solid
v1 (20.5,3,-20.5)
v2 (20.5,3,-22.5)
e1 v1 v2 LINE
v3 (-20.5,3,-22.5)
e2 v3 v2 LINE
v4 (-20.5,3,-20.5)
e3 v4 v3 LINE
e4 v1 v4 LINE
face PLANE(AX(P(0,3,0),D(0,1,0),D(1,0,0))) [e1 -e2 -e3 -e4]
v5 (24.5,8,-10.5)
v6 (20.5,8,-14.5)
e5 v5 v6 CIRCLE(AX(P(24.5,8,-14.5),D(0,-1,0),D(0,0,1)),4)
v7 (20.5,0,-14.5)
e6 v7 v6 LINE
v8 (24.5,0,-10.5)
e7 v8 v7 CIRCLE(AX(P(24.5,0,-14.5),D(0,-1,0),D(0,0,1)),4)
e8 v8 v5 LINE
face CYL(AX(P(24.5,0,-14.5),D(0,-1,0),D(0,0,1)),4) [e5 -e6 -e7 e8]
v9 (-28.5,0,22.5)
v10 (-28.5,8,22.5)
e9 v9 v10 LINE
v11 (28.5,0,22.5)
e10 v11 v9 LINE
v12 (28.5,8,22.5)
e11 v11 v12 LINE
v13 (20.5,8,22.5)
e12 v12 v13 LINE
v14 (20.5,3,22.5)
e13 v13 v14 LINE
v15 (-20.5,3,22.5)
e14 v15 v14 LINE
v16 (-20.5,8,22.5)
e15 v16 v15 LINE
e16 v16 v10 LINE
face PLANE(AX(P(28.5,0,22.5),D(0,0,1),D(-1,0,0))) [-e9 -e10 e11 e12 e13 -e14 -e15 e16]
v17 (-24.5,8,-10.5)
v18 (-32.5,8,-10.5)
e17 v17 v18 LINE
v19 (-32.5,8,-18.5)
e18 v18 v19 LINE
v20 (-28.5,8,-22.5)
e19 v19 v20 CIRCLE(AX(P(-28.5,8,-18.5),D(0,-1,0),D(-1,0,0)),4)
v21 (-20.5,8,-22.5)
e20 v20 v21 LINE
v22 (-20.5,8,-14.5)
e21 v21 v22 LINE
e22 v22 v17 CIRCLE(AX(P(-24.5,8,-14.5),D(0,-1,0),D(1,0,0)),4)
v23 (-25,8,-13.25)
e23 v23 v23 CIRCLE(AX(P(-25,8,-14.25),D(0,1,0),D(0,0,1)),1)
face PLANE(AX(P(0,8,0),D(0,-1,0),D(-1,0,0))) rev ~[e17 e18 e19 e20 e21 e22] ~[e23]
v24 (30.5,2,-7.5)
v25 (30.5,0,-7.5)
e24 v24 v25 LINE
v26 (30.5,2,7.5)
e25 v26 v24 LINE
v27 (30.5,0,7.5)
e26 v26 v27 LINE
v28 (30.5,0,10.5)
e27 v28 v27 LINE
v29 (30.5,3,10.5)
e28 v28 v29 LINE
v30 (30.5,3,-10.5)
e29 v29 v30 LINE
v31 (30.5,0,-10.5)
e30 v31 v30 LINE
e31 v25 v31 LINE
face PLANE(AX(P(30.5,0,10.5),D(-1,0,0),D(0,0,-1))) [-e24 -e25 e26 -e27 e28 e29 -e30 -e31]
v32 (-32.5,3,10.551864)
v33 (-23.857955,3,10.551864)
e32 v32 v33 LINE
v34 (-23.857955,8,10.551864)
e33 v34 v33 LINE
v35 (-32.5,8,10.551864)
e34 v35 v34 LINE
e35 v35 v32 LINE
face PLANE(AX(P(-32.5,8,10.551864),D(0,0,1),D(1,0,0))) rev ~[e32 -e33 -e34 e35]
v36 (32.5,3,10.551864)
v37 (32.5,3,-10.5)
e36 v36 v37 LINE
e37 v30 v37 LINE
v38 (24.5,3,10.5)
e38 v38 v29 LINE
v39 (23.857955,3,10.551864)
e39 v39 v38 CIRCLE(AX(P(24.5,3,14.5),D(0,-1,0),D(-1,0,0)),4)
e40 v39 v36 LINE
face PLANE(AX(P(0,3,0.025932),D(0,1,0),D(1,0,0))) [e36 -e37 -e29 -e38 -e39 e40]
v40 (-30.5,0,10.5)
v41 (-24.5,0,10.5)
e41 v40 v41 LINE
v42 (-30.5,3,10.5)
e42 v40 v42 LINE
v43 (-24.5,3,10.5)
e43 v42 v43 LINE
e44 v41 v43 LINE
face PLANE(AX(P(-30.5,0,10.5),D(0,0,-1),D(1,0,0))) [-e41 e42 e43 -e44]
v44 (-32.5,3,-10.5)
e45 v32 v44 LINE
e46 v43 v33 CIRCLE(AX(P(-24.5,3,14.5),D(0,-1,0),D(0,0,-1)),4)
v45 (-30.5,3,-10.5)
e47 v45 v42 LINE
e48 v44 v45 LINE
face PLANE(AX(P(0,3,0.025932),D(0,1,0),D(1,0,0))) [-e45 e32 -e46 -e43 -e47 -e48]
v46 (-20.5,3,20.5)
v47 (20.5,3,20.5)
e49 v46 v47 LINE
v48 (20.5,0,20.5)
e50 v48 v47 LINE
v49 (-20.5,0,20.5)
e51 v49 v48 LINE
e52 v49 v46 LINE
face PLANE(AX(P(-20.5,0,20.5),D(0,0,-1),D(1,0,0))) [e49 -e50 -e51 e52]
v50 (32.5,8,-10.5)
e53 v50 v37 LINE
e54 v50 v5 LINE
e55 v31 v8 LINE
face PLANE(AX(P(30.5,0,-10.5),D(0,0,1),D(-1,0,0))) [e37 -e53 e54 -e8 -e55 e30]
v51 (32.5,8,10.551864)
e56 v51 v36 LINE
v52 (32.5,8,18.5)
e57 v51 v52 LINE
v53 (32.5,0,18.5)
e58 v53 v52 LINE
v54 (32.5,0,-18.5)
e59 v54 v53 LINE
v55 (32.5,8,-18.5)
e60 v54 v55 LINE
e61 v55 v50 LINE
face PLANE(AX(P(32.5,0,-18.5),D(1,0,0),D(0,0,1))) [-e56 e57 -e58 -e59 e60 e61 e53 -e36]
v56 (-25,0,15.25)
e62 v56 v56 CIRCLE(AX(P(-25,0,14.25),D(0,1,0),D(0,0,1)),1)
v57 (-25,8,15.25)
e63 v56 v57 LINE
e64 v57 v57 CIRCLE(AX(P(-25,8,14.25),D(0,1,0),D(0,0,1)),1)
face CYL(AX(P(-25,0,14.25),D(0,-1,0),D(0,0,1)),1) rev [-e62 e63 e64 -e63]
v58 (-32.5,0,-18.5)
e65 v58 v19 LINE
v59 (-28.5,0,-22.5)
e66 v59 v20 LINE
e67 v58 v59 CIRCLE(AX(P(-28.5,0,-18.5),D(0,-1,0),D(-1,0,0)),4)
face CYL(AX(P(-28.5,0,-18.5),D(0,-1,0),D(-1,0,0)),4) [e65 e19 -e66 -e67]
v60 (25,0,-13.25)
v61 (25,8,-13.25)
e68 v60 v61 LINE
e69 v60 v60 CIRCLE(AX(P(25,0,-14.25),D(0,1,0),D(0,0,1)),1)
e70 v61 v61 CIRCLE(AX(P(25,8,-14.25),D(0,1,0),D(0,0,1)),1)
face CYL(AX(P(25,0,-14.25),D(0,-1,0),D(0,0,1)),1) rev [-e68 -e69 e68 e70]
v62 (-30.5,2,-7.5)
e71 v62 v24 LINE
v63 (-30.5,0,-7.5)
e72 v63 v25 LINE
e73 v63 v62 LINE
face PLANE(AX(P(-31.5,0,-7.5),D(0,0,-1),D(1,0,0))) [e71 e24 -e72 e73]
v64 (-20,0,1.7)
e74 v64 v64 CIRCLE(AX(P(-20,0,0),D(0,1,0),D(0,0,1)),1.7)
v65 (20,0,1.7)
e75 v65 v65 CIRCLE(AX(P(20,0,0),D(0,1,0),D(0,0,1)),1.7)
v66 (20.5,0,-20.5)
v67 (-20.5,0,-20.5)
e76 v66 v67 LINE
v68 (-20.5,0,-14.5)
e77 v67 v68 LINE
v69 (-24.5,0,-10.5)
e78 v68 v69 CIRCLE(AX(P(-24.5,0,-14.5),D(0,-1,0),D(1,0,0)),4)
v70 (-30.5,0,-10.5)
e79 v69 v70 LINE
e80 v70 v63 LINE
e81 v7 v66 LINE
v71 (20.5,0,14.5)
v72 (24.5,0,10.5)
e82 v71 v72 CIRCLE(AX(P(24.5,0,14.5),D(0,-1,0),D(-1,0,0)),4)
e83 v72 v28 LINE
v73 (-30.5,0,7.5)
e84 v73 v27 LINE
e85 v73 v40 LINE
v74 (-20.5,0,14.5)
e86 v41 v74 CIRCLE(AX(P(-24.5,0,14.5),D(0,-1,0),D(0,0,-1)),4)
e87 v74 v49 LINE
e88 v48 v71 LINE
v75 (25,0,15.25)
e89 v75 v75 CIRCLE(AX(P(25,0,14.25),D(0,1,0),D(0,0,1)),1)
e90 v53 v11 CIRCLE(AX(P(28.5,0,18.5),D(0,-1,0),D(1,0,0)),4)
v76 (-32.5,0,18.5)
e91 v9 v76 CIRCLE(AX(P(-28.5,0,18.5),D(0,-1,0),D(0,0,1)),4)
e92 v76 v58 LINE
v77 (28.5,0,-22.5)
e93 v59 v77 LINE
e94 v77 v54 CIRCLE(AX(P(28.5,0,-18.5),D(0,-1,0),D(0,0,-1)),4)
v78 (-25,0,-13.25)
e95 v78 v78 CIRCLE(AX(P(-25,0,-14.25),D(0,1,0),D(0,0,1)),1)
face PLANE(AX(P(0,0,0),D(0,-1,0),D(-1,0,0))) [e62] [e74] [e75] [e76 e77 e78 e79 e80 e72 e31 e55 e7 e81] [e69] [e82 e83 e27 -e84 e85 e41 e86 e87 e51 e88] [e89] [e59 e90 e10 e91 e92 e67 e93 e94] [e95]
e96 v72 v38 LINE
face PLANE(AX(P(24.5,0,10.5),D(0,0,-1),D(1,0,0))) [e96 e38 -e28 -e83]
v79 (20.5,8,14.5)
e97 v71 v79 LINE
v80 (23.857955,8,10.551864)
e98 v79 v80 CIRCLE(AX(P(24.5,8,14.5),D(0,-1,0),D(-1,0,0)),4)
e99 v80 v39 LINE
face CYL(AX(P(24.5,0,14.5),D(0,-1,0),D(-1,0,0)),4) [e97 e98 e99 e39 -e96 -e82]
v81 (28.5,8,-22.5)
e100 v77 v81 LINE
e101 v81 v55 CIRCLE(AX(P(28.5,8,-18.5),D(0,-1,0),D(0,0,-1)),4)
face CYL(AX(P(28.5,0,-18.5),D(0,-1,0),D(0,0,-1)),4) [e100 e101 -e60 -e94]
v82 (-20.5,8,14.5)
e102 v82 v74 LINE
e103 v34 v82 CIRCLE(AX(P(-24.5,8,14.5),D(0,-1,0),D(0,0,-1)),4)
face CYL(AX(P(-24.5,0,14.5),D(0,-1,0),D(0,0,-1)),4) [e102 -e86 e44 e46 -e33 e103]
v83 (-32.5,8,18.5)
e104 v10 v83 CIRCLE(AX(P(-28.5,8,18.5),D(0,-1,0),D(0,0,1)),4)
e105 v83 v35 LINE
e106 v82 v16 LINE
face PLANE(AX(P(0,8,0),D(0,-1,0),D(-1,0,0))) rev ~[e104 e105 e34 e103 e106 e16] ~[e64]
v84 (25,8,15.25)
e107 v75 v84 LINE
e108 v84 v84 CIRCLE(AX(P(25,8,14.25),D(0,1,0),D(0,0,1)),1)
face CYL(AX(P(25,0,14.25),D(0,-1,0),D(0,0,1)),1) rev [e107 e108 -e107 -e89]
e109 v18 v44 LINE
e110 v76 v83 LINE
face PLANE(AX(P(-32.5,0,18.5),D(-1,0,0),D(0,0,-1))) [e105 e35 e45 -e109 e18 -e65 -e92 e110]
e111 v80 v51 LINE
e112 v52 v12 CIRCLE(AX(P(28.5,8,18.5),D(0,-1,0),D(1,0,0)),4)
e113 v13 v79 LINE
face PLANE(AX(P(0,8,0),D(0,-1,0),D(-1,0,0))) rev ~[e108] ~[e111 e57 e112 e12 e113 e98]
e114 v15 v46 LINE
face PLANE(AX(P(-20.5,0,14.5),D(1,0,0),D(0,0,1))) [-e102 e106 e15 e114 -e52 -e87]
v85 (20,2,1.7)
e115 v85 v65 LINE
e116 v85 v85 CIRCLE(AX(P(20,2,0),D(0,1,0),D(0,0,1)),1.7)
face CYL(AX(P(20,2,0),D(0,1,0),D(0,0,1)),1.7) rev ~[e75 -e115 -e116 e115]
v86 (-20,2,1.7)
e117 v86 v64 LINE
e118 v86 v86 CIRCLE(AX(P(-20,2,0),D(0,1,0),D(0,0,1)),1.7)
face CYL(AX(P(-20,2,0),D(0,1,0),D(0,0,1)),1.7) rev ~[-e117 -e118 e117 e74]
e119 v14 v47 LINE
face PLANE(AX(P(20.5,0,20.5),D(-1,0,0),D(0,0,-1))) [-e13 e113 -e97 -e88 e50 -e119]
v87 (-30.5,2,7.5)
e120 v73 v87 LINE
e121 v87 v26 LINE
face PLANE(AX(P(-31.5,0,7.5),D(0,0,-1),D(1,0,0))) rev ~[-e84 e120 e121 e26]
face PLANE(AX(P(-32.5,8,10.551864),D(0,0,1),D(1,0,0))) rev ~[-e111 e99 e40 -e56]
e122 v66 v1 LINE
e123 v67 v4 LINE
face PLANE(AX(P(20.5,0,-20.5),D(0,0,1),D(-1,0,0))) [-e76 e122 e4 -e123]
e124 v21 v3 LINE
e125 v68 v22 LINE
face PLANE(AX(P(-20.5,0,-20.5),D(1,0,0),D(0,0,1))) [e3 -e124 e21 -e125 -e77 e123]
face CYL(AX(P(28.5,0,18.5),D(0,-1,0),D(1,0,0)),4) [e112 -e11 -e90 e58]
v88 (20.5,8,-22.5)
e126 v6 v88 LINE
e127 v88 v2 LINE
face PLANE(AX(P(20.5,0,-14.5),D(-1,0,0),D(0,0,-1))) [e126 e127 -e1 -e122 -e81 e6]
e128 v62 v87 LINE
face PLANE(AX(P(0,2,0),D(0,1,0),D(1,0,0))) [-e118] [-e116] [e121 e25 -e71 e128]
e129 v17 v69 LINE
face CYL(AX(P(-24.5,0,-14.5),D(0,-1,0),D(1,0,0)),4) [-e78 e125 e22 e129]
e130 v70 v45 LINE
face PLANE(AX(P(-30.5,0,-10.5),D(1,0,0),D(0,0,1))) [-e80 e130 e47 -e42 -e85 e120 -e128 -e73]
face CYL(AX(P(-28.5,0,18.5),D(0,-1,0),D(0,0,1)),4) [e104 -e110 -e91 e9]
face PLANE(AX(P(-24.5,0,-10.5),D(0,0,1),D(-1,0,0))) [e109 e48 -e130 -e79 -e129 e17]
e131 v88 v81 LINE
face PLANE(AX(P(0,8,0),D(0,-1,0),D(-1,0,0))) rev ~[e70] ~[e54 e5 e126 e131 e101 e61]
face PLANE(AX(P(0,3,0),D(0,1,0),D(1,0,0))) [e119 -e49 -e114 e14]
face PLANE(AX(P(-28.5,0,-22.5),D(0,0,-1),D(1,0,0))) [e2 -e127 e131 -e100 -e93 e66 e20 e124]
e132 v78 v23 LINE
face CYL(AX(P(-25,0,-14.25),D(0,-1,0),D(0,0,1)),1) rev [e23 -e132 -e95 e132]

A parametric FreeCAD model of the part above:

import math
import FreeCAD as App
import Part
import Sketcher

doc = App.newDocument("Part")
body = doc.addObject("PartDesign::Body", "Body")

sketch1 = doc.addObject("Sketcher::SketchObject", "Sketch")
body.addObject(sketch1)
sketch1.AttachmentSupport = (doc.XZ_Plane, [""])
sketch1.MapMode = "FlatFace"
sketch1.addGeometry(Part.LineSegment(App.Vector(28.5, -22.5, 0), App.Vector(-28.5, -22.5, 0)), False)
sketch1.addGeometry(Part.ArcOfCircle(Part.Circle(App.Vector(-28.5, -18.5, 0), App.Vector(0, 0, 1), 4), math.radians(180), math.radians(270)), False)
sketch1.addGeometry(Part.LineSegment(App.Vector(-32.5, -18.5, 0), App.Vector(-32.5, 18.5, 0)), False)
sketch1.addGeometry(Part.ArcOfCircle(Part.Circle(App.Vector(-28.5, 18.5, 0), App.Vector(0, 0, 1), 4), math.radians(90), math.radians(180)), False)
sketch1.addGeometry(Part.LineSegment(App.Vector(-28.5, 22.5, 0), App.Vector(28.5, 22.5, 0)), False)
sketch1.addGeometry(Part.ArcOfCircle(Part.Circle(App.Vector(28.5, 18.5, 0), App.Vector(0, 0, 1), 4), math.radians(0), math.radians(90)), False)
sketch1.addGeometry(Part.LineSegment(App.Vector(32.5, 18.5, 0), App.Vector(32.5, -18.5, 0)), False)
sketch1.addGeometry(Part.ArcOfCircle(Part.Circle(App.Vector(28.5, -18.5, 0), App.Vector(0, 0, 1), 4), math.radians(-90), math.radians(0)), False)
sketch1.addGeometry(Part.Circle(App.Vector(25, 14.2, 0), App.Vector(0, 0, 1), 1), False)
sketch1.addGeometry(Part.Circle(App.Vector(-25, 14.2, 0), App.Vector(0, 0, 1), 1), False)
sketch1.addGeometry(Part.Circle(App.Vector(25, -14.2, 0), App.Vector(0, 0, 1), 1), False)
sketch1.addGeometry(Part.LineSegment(App.Vector(-30.5, -10.5, 0), App.Vector(-24.5, -10.5, 0)), False)
sketch1.addGeometry(Part.ArcOfCircle(Part.Circle(App.Vector(-24.5, -14.5, 0), App.Vector(0, 0, 1), 4), math.radians(0), math.radians(90)), False)
sketch1.addGeometry(Part.LineSegment(App.Vector(-20.5, -14.5, 0), App.Vector(-20.5, -20.5, 0)), False)
sketch1.addGeometry(Part.LineSegment(App.Vector(-20.5, -20.5, 0), App.Vector(20.5, -20.5, 0)), False)
sketch1.addGeometry(Part.LineSegment(App.Vector(20.5, -20.5, 0), App.Vector(20.5, -14.5, 0)), False)
sketch1.addGeometry(Part.ArcOfCircle(Part.Circle(App.Vector(24.5, -14.5, 0), App.Vector(0, 0, 1), 4), math.radians(90), math.radians(180)), False)
sketch1.addGeometry(Part.LineSegment(App.Vector(24.5, -10.5, 0), App.Vector(30.5, -10.5, 0)), False)
sketch1.addGeometry(Part.LineSegment(App.Vector(30.5, -10.5, 0), App.Vector(30.5, 10.5, 0)), False)
sketch1.addGeometry(Part.LineSegment(App.Vector(30.5, 10.5, 0), App.Vector(24.5, 10.5, 0)), False)
sketch1.addGeometry(Part.ArcOfCircle(Part.Circle(App.Vector(24.5, 14.5, 0), App.Vector(0, 0, 1), 4), math.radians(180), math.radians(270)), False)
sketch1.addGeometry(Part.LineSegment(App.Vector(20.5, 14.5, 0), App.Vector(20.5, 20.5, 0)), False)
sketch1.addGeometry(Part.LineSegment(App.Vector(20.5, 20.5, 0), App.Vector(-20.5, 20.5, 0)), False)
sketch1.addGeometry(Part.LineSegment(App.Vector(-20.5, 20.5, 0), App.Vector(-20.5, 14.5, 0)), False)
sketch1.addGeometry(Part.ArcOfCircle(Part.Circle(App.Vector(-24.5, 14.5, 0), App.Vector(0, 0, 1), 4), math.radians(-90), math.radians(0)), False)
sketch1.addGeometry(Part.LineSegment(App.Vector(-24.5, 10.5, 0), App.Vector(-30.5, 10.5, 0)), False)
sketch1.addGeometry(Part.LineSegment(App.Vector(-30.5, 10.5, 0), App.Vector(-30.5, -10.5, 0)), False)
sketch1.addGeometry(Part.Circle(App.Vector(-25, -14.2, 0), App.Vector(0, 0, 1), 1), False)
sketch1.addConstraint(Sketcher.Constraint("Tangent", 0, 2, 1, 2))
sketch1.addConstraint(Sketcher.Constraint("Tangent", 1, 1, 2, 1))
sketch1.addConstraint(Sketcher.Constraint("Tangent", 2, 2, 3, 2))
sketch1.addConstraint(Sketcher.Constraint("Tangent", 3, 1, 4, 1))
sketch1.addConstraint(Sketcher.Constraint("Tangent", 4, 2, 5, 2))
sketch1.addConstraint(Sketcher.Constraint("Tangent", 5, 1, 6, 1))
sketch1.addConstraint(Sketcher.Constraint("Tangent", 6, 2, 7, 2))
sketch1.addConstraint(Sketcher.Constraint("Tangent", 7, 1, 0, 1))
sketch1.addConstraint(Sketcher.Constraint("Tangent", 11, 2, 12, 2))
sketch1.addConstraint(Sketcher.Constraint("Tangent", 12, 1, 13, 1))
sketch1.addConstraint(Sketcher.Constraint("Coincident", 13, 2, 14, 1))
sketch1.addConstraint(Sketcher.Constraint("Coincident", 14, 2, 15, 1))
sketch1.addConstraint(Sketcher.Constraint("Tangent", 15, 2, 16, 2))
sketch1.addConstraint(Sketcher.Constraint("Tangent", 16, 1, 17, 1))
sketch1.addConstraint(Sketcher.Constraint("Coincident", 17, 2, 18, 1))
sketch1.addConstraint(Sketcher.Constraint("Coincident", 18, 2, 19, 1))
sketch1.addConstraint(Sketcher.Constraint("Tangent", 19, 2, 20, 2))
sketch1.addConstraint(Sketcher.Constraint("Tangent", 20, 1, 21, 1))
sketch1.addConstraint(Sketcher.Constraint("Coincident", 21, 2, 22, 1))
sketch1.addConstraint(Sketcher.Constraint("Coincident", 22, 2, 23, 1))
sketch1.addConstraint(Sketcher.Constraint("Tangent", 23, 2, 24, 2))
sketch1.addConstraint(Sketcher.Constraint("Tangent", 24, 1, 25, 1))
sketch1.addConstraint(Sketcher.Constraint("Coincident", 25, 2, 26, 1))
sketch1.addConstraint(Sketcher.Constraint("Coincident", 26, 2, 11, 1))
sketch1.addConstraint(Sketcher.Constraint("Horizontal", 0))
sketch1.addConstraint(Sketcher.Constraint("Vertical", 2))
sketch1.addConstraint(Sketcher.Constraint("Horizontal", 4))
sketch1.addConstraint(Sketcher.Constraint("Vertical", 6))
sketch1.addConstraint(Sketcher.Constraint("Horizontal", 11))
sketch1.addConstraint(Sketcher.Constraint("Vertical", 13))
sketch1.addConstraint(Sketcher.Constraint("Horizontal", 14))
sketch1.addConstraint(Sketcher.Constraint("Vertical", 15))
sketch1.addConstraint(Sketcher.Constraint("Horizontal", 17))
sketch1.addConstraint(Sketcher.Constraint("Vertical", 18))
sketch1.addConstraint(Sketcher.Constraint("Horizontal", 19))
sketch1.addConstraint(Sketcher.Constraint("Vertical", 21))
sketch1.addConstraint(Sketcher.Constraint("Horizontal", 22))
sketch1.addConstraint(Sketcher.Constraint("Vertical", 23))
sketch1.addConstraint(Sketcher.Constraint("Horizontal", 25))
sketch1.addConstraint(Sketcher.Constraint("Vertical", 26))
sketch1.addConstraint(Sketcher.Constraint("Equal", 1, 3))
sketch1.addConstraint(Sketcher.Constraint("Equal", 3, 5))
sketch1.addConstraint(Sketcher.Constraint("Equal", 5, 7))
sketch1.addConstraint(Sketcher.Constraint("Equal", 8, 9))
sketch1.addConstraint(Sketcher.Constraint("Equal", 9, 10))
sketch1.addConstraint(Sketcher.Constraint("Equal", 7, 12))
sketch1.addConstraint(Sketcher.Constraint("Equal", 12, 16))
sketch1.addConstraint(Sketcher.Constraint("Equal", 16, 20))
sketch1.addConstraint(Sketcher.Constraint("Equal", 20, 24))
sketch1.addConstraint(Sketcher.Constraint("Equal", 10, 27))
sketch1.addConstraint(Sketcher.Constraint("Symmetric", 1, 3, 5, 3, -1, 1))
sketch1.addConstraint(Sketcher.Constraint("Symmetric", 9, 3, 10, 3, -1, 1))
sketch1.addConstraint(Sketcher.Constraint("Symmetric", 12, 3, 20, 3, -1, 1))
sketch1.addConstraint(Sketcher.Constraint("Symmetric", 16, 3, 24, 3, -1, 1))
sketch1.addConstraint(Sketcher.Constraint("Symmetric", 8, 3, 27, 3, -1, 1))
sketch1.addConstraint(Sketcher.Constraint("Symmetric", 8, 3, 9, 3, -2))
sketch1.addConstraint(Sketcher.Constraint("Symmetric", 12, 3, 16, 3, -2))
sketch1.addConstraint(Sketcher.Constraint("Equal", 11, 17))
sketch1.addConstraint(Sketcher.Constraint("Equal", 25, 13))
sketch1.addConstraint(Sketcher.Constraint("Equal", 15, 21))
sketch1.addConstraint(Sketcher.Constraint("Diameter", 8, 2.0))
sketch1.addConstraint(Sketcher.Constraint("Radius", 1, 4.0))
sketch1.addConstraint(Sketcher.Constraint("DistanceX", 0, 2, 0, 1, 57.0))
sketch1.addConstraint(Sketcher.Constraint("DistanceX", 11, 1, 11, 2, 6.0))
sketch1.addConstraint(Sketcher.Constraint("DistanceX", 14, 1, 14, 2, 41.0))
sketch1.addConstraint(Sketcher.Constraint("DistanceY", 2, 1, 2, 2, 37.0))
sketch1.addConstraint(Sketcher.Constraint("DistanceY", 18, 1, 18, 2, 21.0))
sketch1.addConstraint(Sketcher.Constraint("DistanceX", -1, 1, 8, 3, 25.0))
sketch1.addConstraint(Sketcher.Constraint("DistanceY", 10, 3, 8, 3, 28.5))
pad1 = doc.addObject("PartDesign::Pad", "Pad")
body.addObject(pad1)
pad1.Profile = sketch1
pad1.Length = 8
pad1.Reversed = True

sketch2 = doc.addObject("Sketcher::SketchObject", "Sketch001")
body.addObject(sketch2)
sketch2.AttachmentSupport = (doc.XZ_Plane, [""])
sketch2.MapMode = "FlatFace"
sketch2.addGeometry(Part.LineSegment(App.Vector(-32, -8, 0), App.Vector(-32, 8, 0)), False)
sketch2.addGeometry(Part.LineSegment(App.Vector(-32, 8, 0), App.Vector(32, 8, 0)), False)
sketch2.addGeometry(Part.LineSegment(App.Vector(32, 8, 0), App.Vector(32, -8, 0)), False)
sketch2.addGeometry(Part.LineSegment(App.Vector(32, -8, 0), App.Vector(-32, -8, 0)), False)
sketch2.addConstraint(Sketcher.Constraint("Coincident", 0, 2, 1, 1))
sketch2.addConstraint(Sketcher.Constraint("Coincident", 1, 2, 2, 1))
sketch2.addConstraint(Sketcher.Constraint("Coincident", 2, 2, 3, 1))
sketch2.addConstraint(Sketcher.Constraint("Coincident", 3, 2, 0, 1))
sketch2.addConstraint(Sketcher.Constraint("Vertical", 0))
sketch2.addConstraint(Sketcher.Constraint("Horizontal", 1))
sketch2.addConstraint(Sketcher.Constraint("Vertical", 2))
sketch2.addConstraint(Sketcher.Constraint("Horizontal", 3))
sketch2.addConstraint(Sketcher.Constraint("Symmetric", 0, 2, 2, 2, -1, 1))
sketch2.addConstraint(Sketcher.Constraint("DistanceX", 1, 1, 1, 2, 63.0))
sketch2.addConstraint(Sketcher.Constraint("DistanceY", 0, 1, 0, 2, 15.0))
pad2 = doc.addObject("PartDesign::Pad", "Pad001")
body.addObject(pad2)
pad2.Profile = sketch2
pad2.Length = 2
pad2.Reversed = True

sketch3 = doc.addObject("Sketcher::SketchObject", "Sketch002")
body.addObject(sketch3)
sketch3.AttachmentSupport = (doc.XZ_Plane, [""])
sketch3.MapMode = "FlatFace"
sketch3.AttachmentOffset = App.Placement(App.Vector(0, 0, -2), App.Rotation())
sketch3.addGeometry(Part.Circle(App.Vector(-20, 0, 0), App.Vector(0, 0, 1), 1.7), False)
sketch3.addGeometry(Part.Circle(App.Vector(20, 0, 0), App.Vector(0, 0, 1), 1.7), False)
sketch3.addConstraint(Sketcher.Constraint("Equal", 0, 1))
sketch3.addConstraint(Sketcher.Constraint("Symmetric", 0, 3, 1, 3, -1, 1))
sketch3.addConstraint(Sketcher.Constraint("PointOnObject", 0, 3, -1))
sketch3.addConstraint(Sketcher.Constraint("Diameter", 0, 3.4))
sketch3.addConstraint(Sketcher.Constraint("DistanceX", 0, 3, -1, 1, 20.0))
pocket1 = doc.addObject("PartDesign::Pocket", "Pocket")
body.addObject(pocket1)
pocket1.Profile = sketch3
pocket1.Length = 2
pocket1.Reversed = True

sketch4 = doc.addObject("Sketcher::SketchObject", "Sketch003")
body.addObject(sketch4)
sketch4.AttachmentSupport = (doc.XZ_Plane, [""])
sketch4.MapMode = "FlatFace"
sketch4.AttachmentOffset = App.Placement(App.Vector(0, 0, -8), App.Rotation())
sketch4.addGeometry(Part.LineSegment(App.Vector(-20, -22, 0), App.Vector(-20, 22, 0)), False)
sketch4.addGeometry(Part.LineSegment(App.Vector(-20, 22, 0), App.Vector(20, 22, 0)), False)
sketch4.addGeometry(Part.LineSegment(App.Vector(20, 22, 0), App.Vector(20, -22, 0)), False)
sketch4.addGeometry(Part.LineSegment(App.Vector(20, -22, 0), App.Vector(-20, -22, 0)), False)
sketch4.addConstraint(Sketcher.Constraint("Coincident", 0, 2, 1, 1))
sketch4.addConstraint(Sketcher.Constraint("Coincident", 1, 2, 2, 1))
sketch4.addConstraint(Sketcher.Constraint("Coincident", 2, 2, 3, 1))
sketch4.addConstraint(Sketcher.Constraint("Coincident", 3, 2, 0, 1))
sketch4.addConstraint(Sketcher.Constraint("Vertical", 0))
sketch4.addConstraint(Sketcher.Constraint("Horizontal", 1))
sketch4.addConstraint(Sketcher.Constraint("Vertical", 2))
sketch4.addConstraint(Sketcher.Constraint("Horizontal", 3))
sketch4.addConstraint(Sketcher.Constraint("Symmetric", 0, 2, 2, 2, -1, 1))
sketch4.addConstraint(Sketcher.Constraint("DistanceX", 1, 1, 1, 2, 41.0))
sketch4.addConstraint(Sketcher.Constraint("DistanceY", 0, 1, 0, 2, 45.0))
pocket2 = doc.addObject("PartDesign::Pocket", "Pocket001")
body.addObject(pocket2)
pocket2.Profile = sketch4
pocket2.Length = 5
pocket2.Reversed = True

sketch5 = doc.addObject("Sketcher::SketchObject", "Sketch004")
body.addObject(sketch5)
sketch5.AttachmentSupport = (doc.XZ_Plane, [""])
sketch5.MapMode = "FlatFace"
sketch5.AttachmentOffset = App.Placement(App.Vector(0, 0, -8), App.Rotation())
sketch5.addGeometry(Part.LineSegment(App.Vector(-32, -10, 0), App.Vector(-32, 11, 0)), False)
sketch5.addGeometry(Part.LineSegment(App.Vector(-32, 11, 0), App.Vector(32, 11, 0)), False)
sketch5.addGeometry(Part.LineSegment(App.Vector(32, 11, 0), App.Vector(32, -10, 0)), False)
sketch5.addGeometry(Part.LineSegment(App.Vector(32, -10, 0), App.Vector(-32, -10, 0)), False)
sketch5.addConstraint(Sketcher.Constraint("Coincident", 0, 2, 1, 1))
sketch5.addConstraint(Sketcher.Constraint("Coincident", 1, 2, 2, 1))
sketch5.addConstraint(Sketcher.Constraint("Coincident", 2, 2, 3, 1))
sketch5.addConstraint(Sketcher.Constraint("Coincident", 3, 2, 0, 1))
sketch5.addConstraint(Sketcher.Constraint("Vertical", 0))
sketch5.addConstraint(Sketcher.Constraint("Horizontal", 1))
sketch5.addConstraint(Sketcher.Constraint("Vertical", 2))
sketch5.addConstraint(Sketcher.Constraint("Horizontal", 3))
sketch5.addConstraint(Sketcher.Constraint("DistanceX", 1, 1, 1, 2, 65.0))
sketch5.addConstraint(Sketcher.Constraint("DistanceX", 0, 2, -1, 1, 32.5))
sketch5.addConstraint(Sketcher.Constraint("DistanceY", 2, 2, -1, 1, 10.5))
sketch5.addConstraint(Sketcher.Constraint("DistanceY", 0, 1, 0, 2, 21.051864))
pocket3 = doc.addObject("PartDesign::Pocket", "Pocket002")
body.addObject(pocket3)
pocket3.Profile = sketch5
pocket3.Length = 5
pocket3.Reversed = True

doc.recompute()
